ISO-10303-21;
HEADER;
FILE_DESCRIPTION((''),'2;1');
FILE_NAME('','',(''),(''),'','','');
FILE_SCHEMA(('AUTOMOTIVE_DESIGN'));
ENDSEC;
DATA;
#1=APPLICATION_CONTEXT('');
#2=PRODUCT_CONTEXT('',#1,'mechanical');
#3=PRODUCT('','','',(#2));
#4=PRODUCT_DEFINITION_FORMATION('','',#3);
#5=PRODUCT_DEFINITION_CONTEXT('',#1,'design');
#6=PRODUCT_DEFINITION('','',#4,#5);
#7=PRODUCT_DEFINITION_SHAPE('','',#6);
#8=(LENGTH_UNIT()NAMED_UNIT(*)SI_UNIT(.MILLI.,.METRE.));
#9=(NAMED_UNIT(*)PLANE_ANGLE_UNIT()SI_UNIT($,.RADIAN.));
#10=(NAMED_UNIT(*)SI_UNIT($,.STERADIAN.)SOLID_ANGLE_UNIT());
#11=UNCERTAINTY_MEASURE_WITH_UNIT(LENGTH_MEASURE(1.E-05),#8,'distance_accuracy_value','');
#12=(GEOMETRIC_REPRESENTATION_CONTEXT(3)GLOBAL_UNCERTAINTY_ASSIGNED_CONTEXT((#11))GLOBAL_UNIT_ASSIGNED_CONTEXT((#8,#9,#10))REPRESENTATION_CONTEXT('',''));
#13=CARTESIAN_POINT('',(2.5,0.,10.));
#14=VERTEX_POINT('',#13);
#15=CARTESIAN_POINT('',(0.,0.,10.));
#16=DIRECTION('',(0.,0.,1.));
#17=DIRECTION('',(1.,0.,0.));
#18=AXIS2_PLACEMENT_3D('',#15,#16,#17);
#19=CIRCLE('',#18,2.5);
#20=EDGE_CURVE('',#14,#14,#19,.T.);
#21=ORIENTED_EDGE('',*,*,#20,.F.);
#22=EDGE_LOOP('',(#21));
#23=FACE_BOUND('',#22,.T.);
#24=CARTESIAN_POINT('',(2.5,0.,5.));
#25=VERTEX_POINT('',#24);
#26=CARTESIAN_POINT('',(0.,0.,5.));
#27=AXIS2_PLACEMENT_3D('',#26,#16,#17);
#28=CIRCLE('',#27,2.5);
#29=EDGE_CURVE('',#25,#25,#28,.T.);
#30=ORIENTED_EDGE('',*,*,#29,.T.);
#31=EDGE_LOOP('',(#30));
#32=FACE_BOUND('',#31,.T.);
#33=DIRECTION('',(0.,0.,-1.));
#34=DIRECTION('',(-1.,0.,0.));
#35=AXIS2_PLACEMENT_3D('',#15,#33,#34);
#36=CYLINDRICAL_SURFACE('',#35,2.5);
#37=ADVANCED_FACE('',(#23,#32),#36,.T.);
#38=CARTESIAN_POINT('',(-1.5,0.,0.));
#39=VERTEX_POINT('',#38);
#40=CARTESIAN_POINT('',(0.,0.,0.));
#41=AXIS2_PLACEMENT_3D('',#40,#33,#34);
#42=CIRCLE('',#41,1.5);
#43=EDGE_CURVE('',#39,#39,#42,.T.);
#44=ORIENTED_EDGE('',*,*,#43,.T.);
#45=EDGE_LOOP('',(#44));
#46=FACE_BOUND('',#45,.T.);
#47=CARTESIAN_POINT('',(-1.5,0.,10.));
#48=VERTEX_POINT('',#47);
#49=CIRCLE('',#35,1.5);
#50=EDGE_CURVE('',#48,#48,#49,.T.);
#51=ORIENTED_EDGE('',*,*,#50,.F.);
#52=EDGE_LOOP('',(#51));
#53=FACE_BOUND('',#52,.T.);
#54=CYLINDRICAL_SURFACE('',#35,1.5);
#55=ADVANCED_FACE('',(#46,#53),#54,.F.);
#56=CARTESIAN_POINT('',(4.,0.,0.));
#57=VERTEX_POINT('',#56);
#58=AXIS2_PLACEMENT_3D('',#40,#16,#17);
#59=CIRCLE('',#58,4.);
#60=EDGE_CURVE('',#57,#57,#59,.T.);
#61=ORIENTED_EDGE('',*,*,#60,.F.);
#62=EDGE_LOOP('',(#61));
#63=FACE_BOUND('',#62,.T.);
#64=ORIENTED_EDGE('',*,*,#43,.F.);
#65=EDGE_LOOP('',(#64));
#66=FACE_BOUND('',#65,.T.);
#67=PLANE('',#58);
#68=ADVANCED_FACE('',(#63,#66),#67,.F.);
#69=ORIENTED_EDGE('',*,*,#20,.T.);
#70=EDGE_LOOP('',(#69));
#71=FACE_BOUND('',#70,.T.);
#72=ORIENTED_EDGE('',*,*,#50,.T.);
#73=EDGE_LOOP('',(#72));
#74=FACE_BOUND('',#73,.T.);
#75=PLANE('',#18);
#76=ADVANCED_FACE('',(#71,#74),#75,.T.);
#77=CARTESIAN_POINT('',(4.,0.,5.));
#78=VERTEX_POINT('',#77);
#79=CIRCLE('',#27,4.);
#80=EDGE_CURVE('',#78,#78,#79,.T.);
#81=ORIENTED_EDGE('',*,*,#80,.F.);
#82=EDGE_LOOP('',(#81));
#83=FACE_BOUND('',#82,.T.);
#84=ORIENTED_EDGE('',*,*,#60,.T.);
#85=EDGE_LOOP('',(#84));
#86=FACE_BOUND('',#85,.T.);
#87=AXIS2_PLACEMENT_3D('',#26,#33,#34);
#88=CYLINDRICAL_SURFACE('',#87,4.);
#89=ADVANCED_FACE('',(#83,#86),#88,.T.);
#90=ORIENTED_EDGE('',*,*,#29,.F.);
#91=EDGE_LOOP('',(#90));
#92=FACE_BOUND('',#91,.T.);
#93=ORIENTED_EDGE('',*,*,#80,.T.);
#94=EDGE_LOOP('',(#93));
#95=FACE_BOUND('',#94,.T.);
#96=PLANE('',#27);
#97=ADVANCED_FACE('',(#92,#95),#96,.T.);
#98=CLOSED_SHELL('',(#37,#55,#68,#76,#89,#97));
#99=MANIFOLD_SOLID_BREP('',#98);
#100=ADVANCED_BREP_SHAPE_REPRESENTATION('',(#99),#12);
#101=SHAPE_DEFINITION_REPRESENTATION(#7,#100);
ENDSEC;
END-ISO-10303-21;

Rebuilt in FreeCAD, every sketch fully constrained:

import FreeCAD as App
import Part
import Sketcher

V = App.Vector

doc = App.newDocument("Part")
body = doc.addObject("PartDesign::Body", "Body")

sketch1 = doc.addObject("Sketcher::SketchObject", "Sketch")
body.addObject(sketch1)
sketch1.AttachmentSupport = (doc.XY_Plane, [""])
sketch1.MapMode = "FlatFace"
sketch1.addGeometry(Part.Circle(V(0, 0, 0), V(0, 0, 1), 4), False)
sketch1.addConstraint([
    Sketcher.Constraint("Coincident", 0, 3, -1, 1),
    Sketcher.Constraint("Diameter", 0, 8.0),
])
pad1 = doc.addObject("PartDesign::Pad", "Pad")
body.addObject(pad1)
pad1.Profile = sketch1
pad1.Length = 5

sketch2 = doc.addObject("Sketcher::SketchObject", "Sketch001")
body.addObject(sketch2)
sketch2.AttachmentSupport = (doc.XY_Plane, [""])
sketch2.MapMode = "FlatFace"
sketch2.AttachmentOffset = App.Placement(V(0, 0, 5), App.Rotation())
sketch2.addGeometry(Part.Circle(V(0, 0, 0), V(0, 0, 1), 2.5), False)
sketch2.addConstraint([
    Sketcher.Constraint("Coincident", 0, 3, -1, 1),
    Sketcher.Constraint("Diameter", 0, 5.0),
])
pad2 = doc.addObject("PartDesign::Pad", "Pad001")
body.addObject(pad2)
pad2.Profile = sketch2
pad2.Length = 5

sketch3 = doc.addObject("Sketcher::SketchObject", "Sketch002")
body.addObject(sketch3)
sketch3.AttachmentSupport = (doc.XY_Plane, [""])
sketch3.MapMode = "FlatFace"
sketch3.addGeometry(Part.Circle(V(0, 0, 0), V(0, 0, 1), 1.5), False)
sketch3.addConstraint([
    Sketcher.Constraint("Coincident", 0, 3, -1, 1),
    Sketcher.Constraint("Diameter", 0, 3.0),
])
pocket1 = doc.addObject("PartDesign::Pocket", "Pocket")
body.addObject(pocket1)
pocket1.Profile = sketch3
pocket1.Length = 10
pocket1.Reversed = True

doc.recompute()
